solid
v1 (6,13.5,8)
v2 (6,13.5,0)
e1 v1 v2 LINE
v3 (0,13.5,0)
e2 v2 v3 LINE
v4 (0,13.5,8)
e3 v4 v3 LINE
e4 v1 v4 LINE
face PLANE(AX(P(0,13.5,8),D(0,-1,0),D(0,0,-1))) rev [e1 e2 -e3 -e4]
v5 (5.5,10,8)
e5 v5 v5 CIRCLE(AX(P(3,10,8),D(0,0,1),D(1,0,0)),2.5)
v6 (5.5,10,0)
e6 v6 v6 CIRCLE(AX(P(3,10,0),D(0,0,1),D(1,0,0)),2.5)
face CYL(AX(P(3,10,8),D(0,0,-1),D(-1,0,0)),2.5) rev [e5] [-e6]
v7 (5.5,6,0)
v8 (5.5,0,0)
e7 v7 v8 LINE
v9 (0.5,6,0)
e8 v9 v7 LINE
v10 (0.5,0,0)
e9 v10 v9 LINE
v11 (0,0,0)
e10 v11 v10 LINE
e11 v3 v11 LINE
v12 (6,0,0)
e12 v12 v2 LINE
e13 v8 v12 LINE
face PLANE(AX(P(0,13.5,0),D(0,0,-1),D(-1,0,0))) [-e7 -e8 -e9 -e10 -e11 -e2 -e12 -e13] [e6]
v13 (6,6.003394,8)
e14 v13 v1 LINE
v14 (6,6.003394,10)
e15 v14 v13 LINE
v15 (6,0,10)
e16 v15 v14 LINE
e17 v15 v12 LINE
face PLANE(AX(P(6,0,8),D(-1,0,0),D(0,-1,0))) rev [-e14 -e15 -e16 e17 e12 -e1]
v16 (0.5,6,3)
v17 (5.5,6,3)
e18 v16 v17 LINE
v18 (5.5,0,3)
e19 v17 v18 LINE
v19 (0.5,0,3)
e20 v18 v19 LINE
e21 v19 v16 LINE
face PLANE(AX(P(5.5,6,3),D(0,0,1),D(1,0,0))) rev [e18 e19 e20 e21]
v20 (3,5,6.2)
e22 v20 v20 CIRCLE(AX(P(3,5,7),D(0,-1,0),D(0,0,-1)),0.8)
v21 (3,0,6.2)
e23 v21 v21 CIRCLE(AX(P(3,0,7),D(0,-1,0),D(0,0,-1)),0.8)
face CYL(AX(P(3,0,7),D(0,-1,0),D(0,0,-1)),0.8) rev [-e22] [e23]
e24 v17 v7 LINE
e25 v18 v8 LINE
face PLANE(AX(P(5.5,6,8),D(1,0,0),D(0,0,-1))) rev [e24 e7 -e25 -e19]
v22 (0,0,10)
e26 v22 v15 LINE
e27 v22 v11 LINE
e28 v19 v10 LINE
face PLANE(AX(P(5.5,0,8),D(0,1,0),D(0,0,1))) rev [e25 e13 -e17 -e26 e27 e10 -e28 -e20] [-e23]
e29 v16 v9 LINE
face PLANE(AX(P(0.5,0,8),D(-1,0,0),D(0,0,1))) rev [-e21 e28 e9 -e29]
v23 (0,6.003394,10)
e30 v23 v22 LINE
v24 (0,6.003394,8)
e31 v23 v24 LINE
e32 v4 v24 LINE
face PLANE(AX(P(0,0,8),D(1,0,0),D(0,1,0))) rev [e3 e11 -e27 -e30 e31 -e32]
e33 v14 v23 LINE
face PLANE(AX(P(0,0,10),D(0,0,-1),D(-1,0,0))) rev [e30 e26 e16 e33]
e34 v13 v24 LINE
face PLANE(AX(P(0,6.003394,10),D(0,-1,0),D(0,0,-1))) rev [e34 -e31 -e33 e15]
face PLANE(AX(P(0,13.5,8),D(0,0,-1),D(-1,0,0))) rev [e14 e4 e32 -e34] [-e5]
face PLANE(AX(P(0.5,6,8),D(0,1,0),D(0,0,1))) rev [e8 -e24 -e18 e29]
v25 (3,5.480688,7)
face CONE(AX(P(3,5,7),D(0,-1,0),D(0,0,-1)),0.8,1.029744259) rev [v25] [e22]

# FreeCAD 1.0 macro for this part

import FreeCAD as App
import Part
import Sketcher


def add_polygon(sketch, points):
    """Adds a closed chain of lines whose ends are joined by coincident constraints."""
    first, n = sketch.GeometryCount, len(points)
    for a, b in zip(points, points[1:] + points[:1]):
        sketch.addGeometry(Part.LineSegment(App.Vector(*a, 0), App.Vector(*b, 0)), False)
    for i in range(n):
        sketch.addConstraint(Sketcher.Constraint("Coincident", first + i, 2, first + (i + 1) % n, 1))

doc = App.newDocument("Part")
body = doc.addObject("PartDesign::Body", "Body")

# Sketch on XY plane
sketch1 = body.newObject("Sketcher::SketchObject", "Sketch")
sketch1.AttachmentSupport = (doc.getObject("XY_Plane"), [""])
sketch1.MapMode = "FlatFace"
add_polygon(sketch1, [(0, 0), (0.5, 0), (0.5, 6), (5.5, 6), (5.5, 0), (6, 0), (6, 13.5), (0, 13.5)])  # lines 0-7
sketch1.addGeometry(Part.Circle(App.Vector(3, 10, 0), App.Vector(0, 0, 1), 2.5), False)  # 8
sketch1.addConstraint([
    Sketcher.Constraint("Horizontal", 0),
    Sketcher.Constraint("Vertical", 1),
    Sketcher.Constraint("Horizontal", 2),
    Sketcher.Constraint("Vertical", 3),
    Sketcher.Constraint("Horizontal", 4),
    Sketcher.Constraint("Vertical", 5),
    Sketcher.Constraint("Horizontal", 6),
    Sketcher.Constraint("Vertical", 7),
    Sketcher.Constraint("Coincident", 7, 2, -1, 1),
    Sketcher.Constraint("PointOnObject", 3, 2, -1),
    Sketcher.Constraint("Equal", 0, 4),
    Sketcher.Constraint("Equal", 6, 1),
    Sketcher.Constraint("Diameter", 8, 5.0),
    Sketcher.Constraint("DistanceX", 2, 1, 2, 2, 5.0),
    Sketcher.Constraint("DistanceX", 6, 2, 6, 1, 6.0),
    Sketcher.Constraint("DistanceY", 5, 1, 5, 2, 13.5),
    Sketcher.Constraint("DistanceX", -1, 1, 8, 3, 3.0),
    Sketcher.Constraint("DistanceY", -1, 1, 8, 3, 10.0),
])
pad1 = body.newObject("PartDesign::Pad", "Pad")
pad1.Profile = sketch1
pad1.Length = 8

# Sketch on XY plane
sketch2 = body.newObject("Sketcher::SketchObject", "Sketch001")
sketch2.AttachmentSupport = (doc.getObject("XY_Plane"), [""])
sketch2.MapMode = "FlatFace"
sketch2.AttachmentOffset = App.Placement(App.Vector(0, 0, 8), App.Rotation())
add_polygon(sketch2, [(0, 6.003394), (0, 0), (6, 0), (6, 6.003394)])  # lines 0-3
sketch2.addConstraint([
    Sketcher.Constraint("Vertical", 0),
    Sketcher.Constraint("Horizontal", 1),
    Sketcher.Constraint("Vertical", 2),
    Sketcher.Constraint("Horizontal", 3),
    Sketcher.Constraint("Coincident", 0, 2, -1, 1),
    Sketcher.Constraint("DistanceX", 1, 1, 1, 2, 6.0),
    Sketcher.Constraint("DistanceY", 0, 2, 0, 1, 6.003394),
])
pad2 = body.newObject("PartDesign::Pad", "Pad001")
pad2.Profile = sketch2
pad2.Length = 2

# Sketch on XY plane
sketch3 = body.newObject("Sketcher::SketchObject", "Sketch002")
sketch3.AttachmentSupport = (doc.getObject("XY_Plane"), [""])
sketch3.MapMode = "FlatFace"
sketch3.AttachmentOffset = App.Placement(App.Vector(0, 0, 8), App.Rotation())
add_polygon(sketch3, [(5.5, 6), (5.5, 0), (0.5, 0), (0.5, 6)])  # lines 0-3
sketch3.addConstraint([
    Sketcher.Constraint("Vertical", 0),
    Sketcher.Constraint("Horizontal", 1),
    Sketcher.Constraint("Vertical", 2),
    Sketcher.Constraint("Horizontal", 3),
    Sketcher.Constraint("PointOnObject", 0, 2, -1),
    Sketcher.Constraint("DistanceX", 1, 2, 1, 1, 5.0),
    Sketcher.Constraint("DistanceY", 0, 2, 0, 1, 6.0),
    Sketcher.Constraint("DistanceX", -1, 1, 0, 2, 5.5),
])
pad3 = body.newObject("PartDesign::Pad", "Pad002")
pad3.Profile = sketch3
pad3.Length = 5
pad3.Reversed = True

# Sketch on XZ plane
sketch4 = body.newObject("Sketcher::SketchObject", "Sketch003")
sketch4.AttachmentSupport = (doc.getObject("XZ_Plane"), [""])
sketch4.MapMode = "FlatFace"
sketch4.addGeometry(Part.Circle(App.Vector(3, 7, 0), App.Vector(0, 0, 1), 0.8), False)
sketch4.addConstraint([
    Sketcher.Constraint("Diameter", 0, 1.6),
    Sketcher.Constraint("DistanceX", -1, 1, 0, 3, 3.0),
    Sketcher.Constraint("DistanceY", -1, 1, 0, 3, 7.0),
])
doc.recompute()
hole = body.newObject("PartDesign::Hole", "Hole")
hole.Profile = sketch4
hole.ThreadType = "None"
hole.Diameter = 1.6
hole.DepthType = "Dimension"
hole.Depth = 5
hole.DrillPoint = "Angled"
hole.DrillPointAngle = 118

doc.recompute()
